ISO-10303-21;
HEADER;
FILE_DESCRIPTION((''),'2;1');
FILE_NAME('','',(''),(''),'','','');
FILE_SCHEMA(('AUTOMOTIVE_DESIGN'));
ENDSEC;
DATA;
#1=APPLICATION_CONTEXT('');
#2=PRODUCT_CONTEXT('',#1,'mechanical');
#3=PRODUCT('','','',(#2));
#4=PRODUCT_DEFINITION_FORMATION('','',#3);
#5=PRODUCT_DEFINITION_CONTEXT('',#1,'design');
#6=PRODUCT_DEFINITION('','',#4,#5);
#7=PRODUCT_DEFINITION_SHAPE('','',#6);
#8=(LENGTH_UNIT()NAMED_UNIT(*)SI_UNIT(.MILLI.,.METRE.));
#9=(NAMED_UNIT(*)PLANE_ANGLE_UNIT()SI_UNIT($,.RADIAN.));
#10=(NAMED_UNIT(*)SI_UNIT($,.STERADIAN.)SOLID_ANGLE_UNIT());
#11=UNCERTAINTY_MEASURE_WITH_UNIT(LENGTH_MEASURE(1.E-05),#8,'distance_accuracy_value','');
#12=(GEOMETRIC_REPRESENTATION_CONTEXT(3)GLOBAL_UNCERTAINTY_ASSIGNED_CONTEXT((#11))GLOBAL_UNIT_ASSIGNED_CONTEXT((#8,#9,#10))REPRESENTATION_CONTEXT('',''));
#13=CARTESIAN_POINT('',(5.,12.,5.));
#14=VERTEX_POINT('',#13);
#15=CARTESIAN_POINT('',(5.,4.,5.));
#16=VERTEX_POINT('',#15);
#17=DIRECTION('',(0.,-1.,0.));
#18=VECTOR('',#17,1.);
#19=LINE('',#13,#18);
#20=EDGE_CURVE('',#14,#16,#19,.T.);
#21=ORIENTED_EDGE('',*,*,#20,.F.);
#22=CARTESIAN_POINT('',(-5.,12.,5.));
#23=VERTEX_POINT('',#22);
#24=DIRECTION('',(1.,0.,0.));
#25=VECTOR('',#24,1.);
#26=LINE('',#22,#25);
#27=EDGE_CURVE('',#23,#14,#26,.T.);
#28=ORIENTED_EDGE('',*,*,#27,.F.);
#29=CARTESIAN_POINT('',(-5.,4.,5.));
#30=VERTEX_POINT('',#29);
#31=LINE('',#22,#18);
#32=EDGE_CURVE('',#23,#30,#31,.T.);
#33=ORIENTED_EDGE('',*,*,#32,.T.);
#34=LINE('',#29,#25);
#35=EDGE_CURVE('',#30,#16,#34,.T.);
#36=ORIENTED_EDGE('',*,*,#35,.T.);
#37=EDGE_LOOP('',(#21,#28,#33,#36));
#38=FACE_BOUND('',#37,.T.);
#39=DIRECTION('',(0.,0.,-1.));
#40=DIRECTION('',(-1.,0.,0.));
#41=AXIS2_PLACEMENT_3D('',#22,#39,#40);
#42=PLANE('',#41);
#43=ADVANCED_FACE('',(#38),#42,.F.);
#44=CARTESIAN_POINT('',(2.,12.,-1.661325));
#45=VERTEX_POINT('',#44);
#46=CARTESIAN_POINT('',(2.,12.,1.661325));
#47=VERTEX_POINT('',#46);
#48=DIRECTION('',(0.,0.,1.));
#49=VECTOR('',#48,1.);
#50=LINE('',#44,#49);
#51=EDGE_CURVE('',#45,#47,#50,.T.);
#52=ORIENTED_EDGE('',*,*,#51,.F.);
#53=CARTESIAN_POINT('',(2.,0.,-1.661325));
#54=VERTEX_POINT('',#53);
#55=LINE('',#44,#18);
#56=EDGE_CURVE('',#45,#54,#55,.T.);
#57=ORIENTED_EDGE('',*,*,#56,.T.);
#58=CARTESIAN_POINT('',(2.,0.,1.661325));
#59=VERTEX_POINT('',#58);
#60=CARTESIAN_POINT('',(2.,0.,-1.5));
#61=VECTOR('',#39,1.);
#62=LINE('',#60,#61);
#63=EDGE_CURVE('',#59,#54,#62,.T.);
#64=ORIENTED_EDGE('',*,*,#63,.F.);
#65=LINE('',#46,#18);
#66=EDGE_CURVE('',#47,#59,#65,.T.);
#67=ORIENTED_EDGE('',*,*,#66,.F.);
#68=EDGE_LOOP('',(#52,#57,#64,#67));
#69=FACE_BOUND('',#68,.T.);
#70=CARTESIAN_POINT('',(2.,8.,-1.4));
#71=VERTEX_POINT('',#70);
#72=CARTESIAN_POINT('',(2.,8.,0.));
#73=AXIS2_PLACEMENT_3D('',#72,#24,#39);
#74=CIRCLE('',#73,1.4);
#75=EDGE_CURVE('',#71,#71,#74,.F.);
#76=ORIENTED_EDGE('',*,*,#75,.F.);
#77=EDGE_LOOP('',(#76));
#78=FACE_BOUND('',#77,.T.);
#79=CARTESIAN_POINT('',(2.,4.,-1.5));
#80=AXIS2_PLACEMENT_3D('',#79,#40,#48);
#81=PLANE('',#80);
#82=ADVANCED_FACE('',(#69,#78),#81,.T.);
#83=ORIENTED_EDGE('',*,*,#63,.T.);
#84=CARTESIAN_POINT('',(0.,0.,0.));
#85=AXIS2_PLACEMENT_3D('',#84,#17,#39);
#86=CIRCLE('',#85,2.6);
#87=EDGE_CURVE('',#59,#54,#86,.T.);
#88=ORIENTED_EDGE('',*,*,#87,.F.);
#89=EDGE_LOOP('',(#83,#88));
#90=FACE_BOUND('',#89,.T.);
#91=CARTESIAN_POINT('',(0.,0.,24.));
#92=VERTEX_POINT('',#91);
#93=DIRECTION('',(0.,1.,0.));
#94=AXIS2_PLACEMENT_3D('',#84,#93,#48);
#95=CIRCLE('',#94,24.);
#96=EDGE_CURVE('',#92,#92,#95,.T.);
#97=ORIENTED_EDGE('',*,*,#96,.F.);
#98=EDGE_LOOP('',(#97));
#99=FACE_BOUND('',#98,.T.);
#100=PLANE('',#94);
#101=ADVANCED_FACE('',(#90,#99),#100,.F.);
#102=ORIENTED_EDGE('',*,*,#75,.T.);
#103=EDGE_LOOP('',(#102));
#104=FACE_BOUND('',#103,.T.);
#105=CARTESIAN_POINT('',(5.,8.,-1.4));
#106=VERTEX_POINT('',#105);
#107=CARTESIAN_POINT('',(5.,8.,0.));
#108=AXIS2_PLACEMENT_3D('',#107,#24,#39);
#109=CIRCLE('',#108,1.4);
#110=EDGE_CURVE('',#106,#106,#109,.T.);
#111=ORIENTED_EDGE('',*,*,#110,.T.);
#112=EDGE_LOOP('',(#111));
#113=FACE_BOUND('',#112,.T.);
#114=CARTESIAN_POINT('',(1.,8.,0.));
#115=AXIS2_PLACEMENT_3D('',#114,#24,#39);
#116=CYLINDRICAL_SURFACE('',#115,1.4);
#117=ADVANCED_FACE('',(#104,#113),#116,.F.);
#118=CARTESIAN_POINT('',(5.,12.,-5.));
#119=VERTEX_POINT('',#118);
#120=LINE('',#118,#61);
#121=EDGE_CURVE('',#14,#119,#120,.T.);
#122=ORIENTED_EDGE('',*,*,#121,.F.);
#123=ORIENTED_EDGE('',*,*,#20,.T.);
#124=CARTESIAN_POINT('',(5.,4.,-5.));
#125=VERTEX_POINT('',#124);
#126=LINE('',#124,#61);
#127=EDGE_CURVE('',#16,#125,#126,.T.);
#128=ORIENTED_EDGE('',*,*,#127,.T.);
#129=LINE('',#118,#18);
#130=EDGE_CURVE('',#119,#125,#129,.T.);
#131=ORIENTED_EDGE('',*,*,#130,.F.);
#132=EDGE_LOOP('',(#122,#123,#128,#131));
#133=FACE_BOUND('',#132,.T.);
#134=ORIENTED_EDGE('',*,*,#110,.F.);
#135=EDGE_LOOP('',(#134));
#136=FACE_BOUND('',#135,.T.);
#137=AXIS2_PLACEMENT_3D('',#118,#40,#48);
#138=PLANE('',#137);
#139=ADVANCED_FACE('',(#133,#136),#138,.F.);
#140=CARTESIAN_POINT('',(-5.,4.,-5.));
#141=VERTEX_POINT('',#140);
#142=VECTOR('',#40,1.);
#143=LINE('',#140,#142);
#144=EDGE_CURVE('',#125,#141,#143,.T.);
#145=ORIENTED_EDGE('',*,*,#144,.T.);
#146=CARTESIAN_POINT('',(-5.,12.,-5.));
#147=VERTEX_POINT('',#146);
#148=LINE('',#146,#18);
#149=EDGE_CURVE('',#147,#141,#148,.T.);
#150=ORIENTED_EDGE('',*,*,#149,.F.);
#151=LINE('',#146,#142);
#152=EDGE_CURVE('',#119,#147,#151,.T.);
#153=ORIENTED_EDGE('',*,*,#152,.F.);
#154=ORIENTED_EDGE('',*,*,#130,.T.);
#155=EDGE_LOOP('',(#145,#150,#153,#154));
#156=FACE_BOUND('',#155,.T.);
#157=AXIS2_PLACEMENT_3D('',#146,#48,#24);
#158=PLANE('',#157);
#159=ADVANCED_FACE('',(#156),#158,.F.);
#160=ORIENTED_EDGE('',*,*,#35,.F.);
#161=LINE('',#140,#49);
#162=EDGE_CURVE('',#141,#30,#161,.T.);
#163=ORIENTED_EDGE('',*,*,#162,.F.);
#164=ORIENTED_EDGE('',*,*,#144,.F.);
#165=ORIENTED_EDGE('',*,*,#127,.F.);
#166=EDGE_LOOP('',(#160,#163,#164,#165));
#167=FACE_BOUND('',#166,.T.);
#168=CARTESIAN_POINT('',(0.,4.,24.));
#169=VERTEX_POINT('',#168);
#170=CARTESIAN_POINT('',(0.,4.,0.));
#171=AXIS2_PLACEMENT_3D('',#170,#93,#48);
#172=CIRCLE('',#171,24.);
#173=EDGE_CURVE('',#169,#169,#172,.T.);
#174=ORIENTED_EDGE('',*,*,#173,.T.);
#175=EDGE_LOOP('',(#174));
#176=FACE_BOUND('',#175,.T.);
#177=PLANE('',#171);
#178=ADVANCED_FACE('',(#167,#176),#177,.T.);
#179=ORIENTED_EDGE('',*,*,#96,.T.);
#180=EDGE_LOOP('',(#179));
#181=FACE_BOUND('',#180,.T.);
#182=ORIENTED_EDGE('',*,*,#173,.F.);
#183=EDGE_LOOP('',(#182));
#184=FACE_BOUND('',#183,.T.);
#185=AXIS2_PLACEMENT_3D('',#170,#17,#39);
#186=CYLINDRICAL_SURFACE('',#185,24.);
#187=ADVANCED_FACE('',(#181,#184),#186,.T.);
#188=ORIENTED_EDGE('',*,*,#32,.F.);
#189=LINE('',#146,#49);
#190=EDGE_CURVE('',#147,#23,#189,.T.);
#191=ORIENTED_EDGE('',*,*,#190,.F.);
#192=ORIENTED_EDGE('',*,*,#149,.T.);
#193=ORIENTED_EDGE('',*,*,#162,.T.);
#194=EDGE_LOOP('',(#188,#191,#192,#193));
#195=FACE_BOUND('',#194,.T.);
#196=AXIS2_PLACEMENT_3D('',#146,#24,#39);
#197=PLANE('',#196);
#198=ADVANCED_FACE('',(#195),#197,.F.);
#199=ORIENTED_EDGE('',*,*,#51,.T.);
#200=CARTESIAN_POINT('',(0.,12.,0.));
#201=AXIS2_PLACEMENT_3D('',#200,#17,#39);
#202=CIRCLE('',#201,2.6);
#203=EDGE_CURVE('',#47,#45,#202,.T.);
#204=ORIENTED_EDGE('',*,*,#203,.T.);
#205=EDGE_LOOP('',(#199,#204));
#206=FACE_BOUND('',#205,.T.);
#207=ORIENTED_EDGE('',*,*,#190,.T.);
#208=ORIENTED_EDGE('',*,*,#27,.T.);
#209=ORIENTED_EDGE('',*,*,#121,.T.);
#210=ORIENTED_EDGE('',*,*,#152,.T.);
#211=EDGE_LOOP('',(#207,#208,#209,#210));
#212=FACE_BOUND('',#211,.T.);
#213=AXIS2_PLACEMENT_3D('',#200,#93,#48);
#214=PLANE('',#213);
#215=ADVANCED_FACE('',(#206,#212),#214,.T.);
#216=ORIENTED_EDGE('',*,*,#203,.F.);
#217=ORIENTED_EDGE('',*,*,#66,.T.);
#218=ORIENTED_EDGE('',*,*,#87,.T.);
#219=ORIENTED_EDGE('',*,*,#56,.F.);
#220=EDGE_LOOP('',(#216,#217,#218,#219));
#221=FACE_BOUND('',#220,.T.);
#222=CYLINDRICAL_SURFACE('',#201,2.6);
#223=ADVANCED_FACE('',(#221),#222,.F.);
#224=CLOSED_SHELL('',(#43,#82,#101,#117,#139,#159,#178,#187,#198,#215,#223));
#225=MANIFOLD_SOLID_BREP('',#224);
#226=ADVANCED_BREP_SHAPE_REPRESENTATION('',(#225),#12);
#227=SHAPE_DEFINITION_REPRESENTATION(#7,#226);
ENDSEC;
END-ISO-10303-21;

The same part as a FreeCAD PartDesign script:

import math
import FreeCAD as App
import Part
import Sketcher
from FreeCAD import Vector

doc = App.newDocument("Part")
body = doc.addObject("PartDesign::Body", "Body")

# Sketch on XZ plane
sketch1 = body.newObject("Sketcher::SketchObject", "Sketch")
sketch1.AttachmentSupport = (doc.getObject("XZ_Plane"), [""])
sketch1.MapMode = "FlatFace"
sketch1.addGeometry(Part.Circle(Vector(0, 0, 0), Vector(0, 0, 1), 24), False)
sketch1.addGeometry(Part.ArcOfCircle(Part.Circle(Vector(0, 0, 0), Vector(0, 0, 1), 2.5), math.radians(37), math.radians(323)), False)
sketch1.addGeometry(Part.LineSegment(Vector(2, -1.5, 0), Vector(2, 1.5, 0)), False)
sketch1.addConstraint(Sketcher.Constraint("Coincident", 1, 1, 2, 2))
sketch1.addConstraint(Sketcher.Constraint("Coincident", 2, 1, 1, 2))
sketch1.addConstraint(Sketcher.Constraint("Vertical", 2))
sketch1.addConstraint(Sketcher.Constraint("Coincident", 0, 3, -1, 1))
sketch1.addConstraint(Sketcher.Constraint("Coincident", 1, 3, -1, 1))
sketch1.addConstraint(Sketcher.Constraint("Diameter", 0, 48.0))
sketch1.addConstraint(Sketcher.Constraint("Radius", 1, 2.5))
sketch1.addConstraint(Sketcher.Constraint("DistanceY", 2, 1, 2, 2, 3.0))
pad1 = body.newObject("PartDesign::Pad", "Pad")
pad1.Profile = sketch1
pad1.Length = 4
pad1.Reversed = True

# Sketch on XZ plane
sketch2 = body.newObject("Sketcher::SketchObject", "Sketch001")
sketch2.AttachmentSupport = (doc.getObject("XZ_Plane"), [""])
sketch2.MapMode = "FlatFace"
sketch2.AttachmentOffset = App.Placement(Vector(0, 0, -4), App.Rotation())
sketch2.addGeometry(Part.LineSegment(Vector(-5, -5, 0), Vector(-5, 5, 0)), False)
sketch2.addGeometry(Part.LineSegment(Vector(-5, 5, 0), Vector(5, 5, 0)), False)
sketch2.addGeometry(Part.LineSegment(Vector(5, 5, 0), Vector(5, -5, 0)), False)
sketch2.addGeometry(Part.LineSegment(Vector(5, -5, 0), Vector(-5, -5, 0)), False)
sketch2.addConstraint(Sketcher.Constraint("Coincident", 0, 2, 1, 1))
sketch2.addConstraint(Sketcher.Constraint("Coincident", 1, 2, 2, 1))
sketch2.addConstraint(Sketcher.Constraint("Coincident", 2, 2, 3, 1))
sketch2.addConstraint(Sketcher.Constraint("Coincident", 3, 2, 0, 1))
sketch2.addConstraint(Sketcher.Constraint("Vertical", 0))
sketch2.addConstraint(Sketcher.Constraint("Horizontal", 1))
sketch2.addConstraint(Sketcher.Constraint("Vertical", 2))
sketch2.addConstraint(Sketcher.Constraint("Horizontal", 3))
sketch2.addConstraint(Sketcher.Constraint("Symmetric", 0, 2, 2, 2, -1, 1))
sketch2.addConstraint(Sketcher.Constraint("Equal", 3, 0))
sketch2.addConstraint(Sketcher.Constraint("DistanceX", 1, 1, 1, 2, 10.0))
pad2 = body.newObject("PartDesign::Pad", "Pad001")
pad2.Profile = sketch2
pad2.Length = 8
pad2.Reversed = True

# Sketch on YZ plane
sketch3 = body.newObject("Sketcher::SketchObject", "Sketch002")
sketch3.AttachmentSupport = (doc.getObject("YZ_Plane"), [""])
sketch3.MapMode = "FlatFace"
sketch3.AttachmentOffset = App.Placement(Vector(0, 0, 5), App.Rotation())
sketch3.addGeometry(Part.Circle(Vector(8, 0, 0), Vector(0, 0, 1), 1.4), False)
sketch3.addConstraint(Sketcher.Constraint("PointOnObject", 0, 3, -1))
sketch3.addConstraint(Sketcher.Constraint("Diameter", 0, 2.8))
sketch3.addConstraint(Sketcher.Constraint("DistanceX", -1, 1, 0, 3, 8.0))
pocket1 = body.newObject("PartDesign::Pocket", "Pocket")
pocket1.Profile = sketch3
pocket1.Length = 4

# Sketch on XZ plane
sketch4 = body.newObject("Sketcher::SketchObject", "Sketch003")
sketch4.AttachmentSupport = (doc.getObject("XZ_Plane"), [""])
sketch4.MapMode = "FlatFace"
sketch4.AttachmentOffset = App.Placement(Vector(0, 0, -4), App.Rotation())
sketch4.addGeometry(Part.LineSegment(Vector(2, -1.7, 0), Vector(2, 1.7, 0)), False)
sketch4.addGeometry(Part.ArcOfCircle(Part.Circle(Vector(0, 0, 0), Vector(0, 0, 1), 2.6), math.radians(40), math.radians(320)), False)
sketch4.addConstraint(Sketcher.Constraint("Coincident", 0, 1, 1, 2))
sketch4.addConstraint(Sketcher.Constraint("Coincident", 1, 1, 0, 2))
sketch4.addConstraint(Sketcher.Constraint("Vertical", 0))
sketch4.addConstraint(Sketcher.Constraint("Coincident", 1, 3, -1, 1))
sketch4.addConstraint(Sketcher.Constraint("Radius", 1, 2.6))
sketch4.addConstraint(Sketcher.Constraint("DistanceX", -1, 1, 0, 1, 2.0))
pocket2 = body.newObject("PartDesign::Pocket", "Pocket001")
pocket2.Profile = sketch4
pocket2.Type = "ThroughAll"
pocket2.Midplane = True

doc.recompute()
